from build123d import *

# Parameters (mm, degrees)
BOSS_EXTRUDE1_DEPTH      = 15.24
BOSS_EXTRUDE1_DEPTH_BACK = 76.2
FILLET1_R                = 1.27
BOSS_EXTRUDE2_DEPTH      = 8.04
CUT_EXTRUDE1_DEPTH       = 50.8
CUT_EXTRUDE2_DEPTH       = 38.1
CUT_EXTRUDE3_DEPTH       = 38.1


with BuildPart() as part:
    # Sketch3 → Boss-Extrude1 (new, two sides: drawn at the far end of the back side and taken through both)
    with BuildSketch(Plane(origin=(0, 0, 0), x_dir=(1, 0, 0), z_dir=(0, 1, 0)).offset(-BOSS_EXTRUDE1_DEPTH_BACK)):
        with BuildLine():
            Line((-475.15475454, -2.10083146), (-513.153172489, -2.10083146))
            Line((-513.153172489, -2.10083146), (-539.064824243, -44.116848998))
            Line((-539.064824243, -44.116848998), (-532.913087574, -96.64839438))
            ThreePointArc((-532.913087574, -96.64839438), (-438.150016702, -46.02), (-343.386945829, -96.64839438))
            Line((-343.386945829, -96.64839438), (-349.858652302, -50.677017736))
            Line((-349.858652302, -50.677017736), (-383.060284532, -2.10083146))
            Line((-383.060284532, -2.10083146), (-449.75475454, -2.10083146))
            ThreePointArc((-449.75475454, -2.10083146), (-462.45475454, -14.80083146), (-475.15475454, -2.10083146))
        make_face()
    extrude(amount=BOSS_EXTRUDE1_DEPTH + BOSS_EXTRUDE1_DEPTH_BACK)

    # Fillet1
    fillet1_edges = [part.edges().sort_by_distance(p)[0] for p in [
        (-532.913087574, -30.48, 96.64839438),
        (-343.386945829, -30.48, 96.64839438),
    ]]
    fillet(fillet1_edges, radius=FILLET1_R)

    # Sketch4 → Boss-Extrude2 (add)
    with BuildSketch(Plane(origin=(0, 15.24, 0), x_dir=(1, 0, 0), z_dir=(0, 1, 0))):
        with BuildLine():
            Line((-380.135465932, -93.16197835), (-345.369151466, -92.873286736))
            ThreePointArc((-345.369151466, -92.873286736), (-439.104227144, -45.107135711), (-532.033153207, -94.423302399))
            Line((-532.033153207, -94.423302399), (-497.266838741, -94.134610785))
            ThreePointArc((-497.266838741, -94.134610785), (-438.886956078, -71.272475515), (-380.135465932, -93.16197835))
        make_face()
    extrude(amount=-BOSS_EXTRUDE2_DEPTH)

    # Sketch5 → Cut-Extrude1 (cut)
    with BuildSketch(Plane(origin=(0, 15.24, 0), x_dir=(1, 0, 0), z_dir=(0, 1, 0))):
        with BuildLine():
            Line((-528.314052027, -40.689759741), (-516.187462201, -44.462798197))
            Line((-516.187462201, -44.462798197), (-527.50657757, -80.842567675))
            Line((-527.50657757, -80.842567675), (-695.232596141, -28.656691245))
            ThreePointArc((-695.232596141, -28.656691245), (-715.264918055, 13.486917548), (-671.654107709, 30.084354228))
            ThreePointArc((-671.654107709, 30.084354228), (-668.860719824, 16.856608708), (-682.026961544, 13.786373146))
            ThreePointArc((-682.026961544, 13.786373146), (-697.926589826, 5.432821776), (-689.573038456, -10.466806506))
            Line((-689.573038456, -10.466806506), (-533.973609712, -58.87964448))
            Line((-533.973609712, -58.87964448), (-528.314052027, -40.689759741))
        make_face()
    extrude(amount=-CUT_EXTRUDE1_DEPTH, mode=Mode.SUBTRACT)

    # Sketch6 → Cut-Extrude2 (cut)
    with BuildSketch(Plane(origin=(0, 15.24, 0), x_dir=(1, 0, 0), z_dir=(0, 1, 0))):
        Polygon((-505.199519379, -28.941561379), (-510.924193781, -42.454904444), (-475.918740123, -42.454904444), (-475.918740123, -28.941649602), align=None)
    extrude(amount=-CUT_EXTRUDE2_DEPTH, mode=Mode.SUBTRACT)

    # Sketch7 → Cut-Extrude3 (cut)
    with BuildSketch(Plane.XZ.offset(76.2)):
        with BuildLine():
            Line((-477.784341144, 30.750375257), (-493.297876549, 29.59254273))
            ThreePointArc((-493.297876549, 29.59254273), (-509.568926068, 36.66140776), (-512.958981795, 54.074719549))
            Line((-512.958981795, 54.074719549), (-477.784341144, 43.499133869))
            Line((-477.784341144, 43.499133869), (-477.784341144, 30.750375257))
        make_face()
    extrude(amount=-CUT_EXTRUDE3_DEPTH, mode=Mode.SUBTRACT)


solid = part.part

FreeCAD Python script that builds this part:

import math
import FreeCAD as App
import Part
import Sketcher
Q = App.Units.Quantity


def edges_at(feature, points):
    """Names of the edges that pass closest to the given points."""
    edges = feature.Shape.Edges
    near = lambda p: min(range(len(edges)), key=lambda i: edges[i].distToShape(Part.Vertex(*p))[0])
    return sorted({f"Edge{near(p) + 1}" for p in points})

doc = App.newDocument("Part")
body = doc.addObject("PartDesign::Body", "Body")

# Sketch on XZ plane
sketch1 = body.newObject("Sketcher::SketchObject", "Sketch")
sketch1.AttachmentSupport = (doc.getObject("XZ_Plane"), [""])
sketch1.MapMode = "FlatFace"
sketch1.addGeometry([
    Part.LineSegment(App.Vector(-475, 2, 0), App.Vector(-513, 2, 0)),  # 0
    Part.LineSegment(App.Vector(-513, 2, 0), App.Vector(-539, 44, 0)),  # 1
    Part.LineSegment(App.Vector(-539, 44, 0), App.Vector(-533, 97, 0)),  # 2
    Part.ArcOfCircle(Part.Circle(App.Vector(-438, 160, 0), App.Vector(0, 0, 1), 114), math.radians(-146), math.radians(-34)),  # 3
    Part.LineSegment(App.Vector(-343, 97, 0), App.Vector(-350, 51, 0)),  # 4
    Part.LineSegment(App.Vector(-350, 51, 0), App.Vector(-383, 2, 0)),  # 5
    Part.LineSegment(App.Vector(-383, 2, 0), App.Vector(-450, 2, 0)),  # 6
    Part.ArcOfCircle(Part.Circle(App.Vector(-462, 2, 0), App.Vector(0, 0, 1), 13), math.radians(0), math.radians(180)),  # 7
], False)
sketch1.addConstraint([
    Sketcher.Constraint("Coincident", 0, 2, 1, 1),
    Sketcher.Constraint("Coincident", 1, 2, 2, 1),
    Sketcher.Constraint("Coincident", 2, 2, 3, 1),
    Sketcher.Constraint("Coincident", 3, 2, 4, 1),
    Sketcher.Constraint("Coincident", 4, 2, 5, 1),
    Sketcher.Constraint("Coincident", 5, 2, 6, 1),
    Sketcher.Constraint("Coincident", 6, 2, 7, 1),
    Sketcher.Constraint("Coincident", 7, 2, 0, 1),
    Sketcher.Constraint("Horizontal", 0),
    Sketcher.Constraint("Horizontal", 6),
    Sketcher.Constraint("Horizontal", 7, 3, 0, 2),
    Sketcher.Constraint("Horizontal", 2, 2, 3, 2),
    Sketcher.Constraint("Horizontal", 0, 2, 5, 2),
    Sketcher.Constraint("Radius", 7, Q("0.5 in")),
    Sketcher.Constraint("DistanceY", -1, 1, 3, 3, Q("6.3 in")),
    Sketcher.Constraint("Radius", 3, Q("114 mm")),
    Sketcher.Constraint("DistanceX", 6, 2, 6, 1, Q("66.69447 mm")),
    Sketcher.Constraint("Distance", 2, Q("52.89052 mm")),
    Sketcher.Constraint("DistanceX", 0, 2, 0, 1, Q("37.998418 mm")),
    Sketcher.Constraint("DistanceY", -1, 1, 7, 3, Q("2.100831 mm")),
    Sketcher.Constraint("DistanceY", -1, 1, 1, 2, Q("44.116849 mm")),
    Sketcher.Constraint("DistanceX", 1, 2, 0, 2, Q("25.911652 mm")),
    Sketcher.Constraint("DistanceX", 2, 2, 3, 3, Q("94.763071 mm")),
    Sketcher.Constraint("DistanceX", 0, 2, 4, 2, Q("163.29452 mm")),
    Sketcher.Constraint("Distance", 4, Q("46.424675 mm")),
    Sketcher.Constraint("DistanceX", 3, 3, -1, 1, Q("438.150017 mm")),
])
pad1 = body.newObject("PartDesign::Pad", "Pad")
pad1.Profile = sketch1
pad1.Type = "TwoLengths"
pad1.Length = Q("0.6 in")
pad1.Length2 = Q("3 in")
pad1.Reversed = True
doc.recompute()

fillet = body.newObject("PartDesign::Fillet", "Fillet")
fillet.Base = (pad1, edges_at(pad1, [(-532.913, -30.48, 96.648), (-343.387, -30.48, 96.648)]))
fillet.Radius = Q("0.05 in")

# Sketch on XZ plane
sketch2 = body.newObject("Sketcher::SketchObject", "Sketch001")
sketch2.AttachmentSupport = (doc.getObject("XZ_Plane"), [""])
sketch2.MapMode = "FlatFace"
sketch2.AttachmentOffset = App.Placement(App.Vector(0, 0, -0.6 * 25.4), App.Rotation())
sketch2.addGeometry([
    Part.LineSegment(App.Vector(-380, 93, 0), App.Vector(-345, 93, 0)),
    Part.ArcOfCircle(Part.Circle(App.Vector(-438, 159, 0), App.Vector(0, 0, 1), 114), math.radians(-145), math.radians(-36)),
    Part.LineSegment(App.Vector(-532, 94, 0), App.Vector(-497, 94, 0)),
    Part.ArcOfCircle(Part.Circle(App.Vector(-438, 159, 0), App.Vector(0, 0, 1), 88), math.radians(-132), math.radians(-49)),
], False)
sketch2.addConstraint([
    Sketcher.Constraint("Coincident", 0, 2, 1, 2),
    Sketcher.Constraint("Coincident", 1, 1, 2, 1),
    Sketcher.Constraint("Coincident", 2, 2, 3, 1),
    Sketcher.Constraint("Coincident", 3, 2, 0, 1),
    Sketcher.Constraint("Coincident", 3, 3, 1, 3),
    Sketcher.Constraint("Parallel", 0, 2),
    Sketcher.Constraint("Equal", 0, 2),
    Sketcher.Constraint("Radius", 1, Q("114.001069 mm")),
    Sketcher.Constraint("DistanceX", 1, 3, -1, 1, Q("17.2503 in")),
    Sketcher.Constraint("Radius", 3, Q("87.834827 mm")),
    Sketcher.Constraint("DistanceX", 1, 1, 0, 2, Q("186.664002 mm")),
    Sketcher.Constraint("DistanceX", 0, 2, -1, 1, Q("345.369151 mm")),
    Sketcher.Constraint("DistanceY", -1, 1, 2, 2, Q("94.134611 mm")),
])
pad2 = body.newObject("PartDesign::Pad", "Pad001")
pad2.Profile = sketch2
pad2.Length = 8.04

# Sketch on XZ plane
sketch3 = body.newObject("Sketcher::SketchObject", "Sketch002")
sketch3.AttachmentSupport = (doc.getObject("XZ_Plane"), [""])
sketch3.MapMode = "FlatFace"
sketch3.AttachmentOffset = App.Placement(App.Vector(0, 0, -0.6 * 25.4), App.Rotation())
sketch3.addGeometry([
    Part.LineSegment(App.Vector(-516, 44, 0), App.Vector(-528, 41, 0)),  # 0
    Part.LineSegment(App.Vector(-528, 41, 0), App.Vector(-534, 59, 0)),  # 1
    Part.LineSegment(App.Vector(-534, 59, 0), App.Vector(-690, 10, 0)),  # 2
    Part.ArcOfCircle(Part.Circle(App.Vector(-686, -2, 0), App.Vector(0, 0, 1), 13), math.radians(107), math.radians(287)),  # 3
    Part.ArcOfCircle(Part.Circle(App.Vector(-677, -22, 0), App.Vector(0, 0, 1), 10), math.radians(-56), math.radians(121)),  # 4
    Part.ArcOfCircle(Part.Circle(App.Vector(-686, -2, 0), App.Vector(0, 0, 1), 32), math.radians(107), math.radians(296)),  # 5
    Part.LineSegment(App.Vector(-695, 29, 0), App.Vector(-528, 81, 0)),  # 6
    Part.LineSegment(App.Vector(-528, 81, 0), App.Vector(-516, 44, 0)),  # 7
], False)
sketch3.addConstraint([
    Sketcher.Constraint("Coincident", 0, 2, 1, 1),
    Sketcher.Constraint("Coincident", 1, 2, 2, 1),
    Sketcher.Constraint("Tangent", 2, 2, 3, 1),
    Sketcher.Constraint("Coincident", 3, 2, 4, 2),
    Sketcher.Constraint("Coincident", 4, 1, 5, 2),
    Sketcher.Constraint("Tangent", 5, 1, 6, 1),
    Sketcher.Constraint("Coincident", 6, 2, 7, 1),
    Sketcher.Constraint("Coincident", 7, 2, 0, 1),
    Sketcher.Constraint("Coincident", 5, 3, 3, 3),
    Sketcher.Constraint("Perpendicular", 0, 1),
    Sketcher.Constraint("Perpendicular", 1, 2),
    Sketcher.Constraint("Parallel", 2, 6),
    Sketcher.Constraint("Perpendicular", 6, 7),
    Sketcher.Constraint("Radius", 3, Q("0.5 in")),
    Sketcher.Constraint("Radius", 5, Q("1.25 in")),
    Sketcher.Constraint("DistanceX", 3, 3, -1, 1, Q("27 in")),
    Sketcher.Constraint("Distance", 0, Q("0.5 in")),
    Sketcher.Constraint("Distance", 7, Q("1.5 in")),
    Sketcher.Constraint("Radius", 4, Q("9.661581 mm")),
    Sketcher.Constraint("DistanceY", -1, 1, 7, 2, Q("44.462798 mm")),
    Sketcher.Constraint("DistanceY", -1, 1, 0, 2, Q("40.68976 mm")),
    Sketcher.Constraint("DistanceX", 1, 2, -1, 1, Q("533.97361 mm")),
    Sketcher.Constraint("DistanceX", 3, 2, -1, 1, Q("682.026962 mm")),
    Sketcher.Constraint("DistanceX", 4, 3, 0, 2, Q("148.697452 mm")),
])
pocket1 = body.newObject("PartDesign::Pocket", "Pocket")
pocket1.Profile = sketch3
pocket1.Length = Q("2 in")
pocket1.Reversed = True

# Sketch on XZ plane
sketch4 = body.newObject("Sketcher::SketchObject", "Sketch003")
sketch4.AttachmentSupport = (doc.getObject("XZ_Plane"), [""])
sketch4.MapMode = "FlatFace"
sketch4.AttachmentOffset = App.Placement(App.Vector(0, 0, -0.6 * 25.4), App.Rotation())
sketch4.addGeometry([
    Part.LineSegment(App.Vector(-505, 29, 0), App.Vector(-511, 42, 0)),
    Part.LineSegment(App.Vector(-511, 42, 0), App.Vector(-476, 42, 0)),
    Part.LineSegment(App.Vector(-476, 42, 0), App.Vector(-476, 29, 0)),
    Part.LineSegment(App.Vector(-476, 29, 0), App.Vector(-505, 29, 0)),
], False)
sketch4.addConstraint([
    Sketcher.Constraint("Coincident", 0, 2, 1, 1),
    Sketcher.Constraint("Coincident", 1, 2, 2, 1),
    Sketcher.Constraint("Coincident", 2, 2, 3, 1),
    Sketcher.Constraint("Coincident", 3, 2, 0, 1),
    Sketcher.Constraint("Horizontal", 1),
    Sketcher.Constraint("Vertical", 2),
    Sketcher.Constraint("Distance", 0, Q("14.67591 mm")),
    Sketcher.Constraint("Distance", 3, Q("29.280779 mm")),
    Sketcher.Constraint("DistanceX", 1, 1, 1, 2, Q("35.005454 mm")),
    Sketcher.Constraint("DistanceY", 2, 2, 2, 1, Q("13.513255 mm")),
    Sketcher.Constraint("DistanceX", 1, 2, -1, 1, Q("475.91874 mm")),
    Sketcher.Constraint("DistanceY", -1, 1, 2, 2, Q("28.94165 mm")),
])
pocket2 = body.newObject("PartDesign::Pocket", "Pocket001")
pocket2.Profile = sketch4
pocket2.Length = Q("1.5 in")
pocket2.Reversed = True

# Sketch on XZ plane
sketch5 = body.newObject("Sketcher::SketchObject", "Sketch004")
sketch5.AttachmentSupport = (doc.getObject("XZ_Plane"), [""])
sketch5.MapMode = "FlatFace"
sketch5.AttachmentOffset = App.Placement(App.Vector(0, 0, 3 * 25.4), App.Rotation())
sketch5.addGeometry([
    Part.LineSegment(App.Vector(-493.297877, 29.592543, 0), App.Vector(-477.784341, 30.750375, 0)),
    Part.LineSegment(App.Vector(-477.784341, 30.750375, 0), App.Vector(-477.784341, 43.499134, 0)),
    Part.LineSegment(App.Vector(-477.784341, 43.499134, 0), App.Vector(-512.958982, 54.07472, 0)),
    Part.ArcOfCircle(Part.Circle(App.Vector(-494.715705, 48.589707, 0), App.Vector(0, 0, 1), 19.05), math.radians(163.266102), math.radians(274.268283)),
], False)
sketch5.addConstraint([
    Sketcher.Constraint("Coincident", 0, 2, 1, 1),
    Sketcher.Constraint("Coincident", 1, 2, 2, 1),
    Sketcher.Constraint("Coincident", 2, 2, 3, 1),
    Sketcher.Constraint("Coincident", 3, 2, 0, 1),
    Sketcher.Constraint("Vertical", 1),
    Sketcher.Constraint("Radius", 3, Q("0.75 in")),
    Sketcher.Constraint("DistanceY", 1, 1, 1, 2, Q("12.748759 mm")),
    Sketcher.Constraint("DistanceX", 0, 2, -1, 1, Q("477.784341 mm")),
    Sketcher.Constraint("DistanceX", 2, 2, -1, 1, Q("512.958982 mm")),
    Sketcher.Constraint("DistanceY", -1, 1, 2, 2, Q("54.07472 mm")),
    Sketcher.Constraint("DistanceX", 3, 3, 3, 2, Q("1.417829 mm")),
    Sketcher.Constraint("DistanceY", 3, 2, 1, 2, Q("13.906591 mm")),
    Sketcher.Constraint("Distance", 0, Q("15.556682 mm")),
])
pocket3 = body.newObject("PartDesign::Pocket", "Pocket002")
pocket3.Profile = sketch5
pocket3.Length = Q("1.5 in")

doc.recompute()
